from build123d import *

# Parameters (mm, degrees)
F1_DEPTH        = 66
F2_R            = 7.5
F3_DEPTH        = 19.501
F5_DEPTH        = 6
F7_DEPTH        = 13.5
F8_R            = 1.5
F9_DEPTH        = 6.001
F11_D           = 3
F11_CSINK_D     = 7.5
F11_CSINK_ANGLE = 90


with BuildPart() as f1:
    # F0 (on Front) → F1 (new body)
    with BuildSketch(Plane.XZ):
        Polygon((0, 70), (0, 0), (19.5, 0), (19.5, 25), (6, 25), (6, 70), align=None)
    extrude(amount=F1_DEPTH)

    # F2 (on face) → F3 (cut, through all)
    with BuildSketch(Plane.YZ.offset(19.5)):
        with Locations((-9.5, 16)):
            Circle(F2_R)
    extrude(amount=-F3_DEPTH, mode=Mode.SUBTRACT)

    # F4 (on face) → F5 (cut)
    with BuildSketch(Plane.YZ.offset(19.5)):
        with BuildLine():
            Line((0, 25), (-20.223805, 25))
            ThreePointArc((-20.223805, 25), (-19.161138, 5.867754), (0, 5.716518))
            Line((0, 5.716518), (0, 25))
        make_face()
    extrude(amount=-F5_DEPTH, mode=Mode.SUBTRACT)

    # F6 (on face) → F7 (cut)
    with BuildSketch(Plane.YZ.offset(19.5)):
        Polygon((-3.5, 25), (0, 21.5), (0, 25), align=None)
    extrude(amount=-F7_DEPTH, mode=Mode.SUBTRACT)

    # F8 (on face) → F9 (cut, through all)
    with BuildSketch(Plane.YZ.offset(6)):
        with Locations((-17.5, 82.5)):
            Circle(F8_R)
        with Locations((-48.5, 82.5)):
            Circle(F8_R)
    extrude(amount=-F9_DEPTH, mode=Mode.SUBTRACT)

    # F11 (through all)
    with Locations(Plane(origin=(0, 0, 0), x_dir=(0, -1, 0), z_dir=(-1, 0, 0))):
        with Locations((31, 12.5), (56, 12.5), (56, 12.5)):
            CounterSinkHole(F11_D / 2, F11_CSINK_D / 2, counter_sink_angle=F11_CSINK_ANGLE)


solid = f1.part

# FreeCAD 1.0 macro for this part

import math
import FreeCAD as App
import Part
import Sketcher
from FreeCAD import Vector

doc = App.newDocument("Part")
params = doc.addObject("Spreadsheet::Sheet", "Params")
for row, (alias, value) in enumerate([
    ("sketch1_width", "6 mm"),
    ("sketch1_height", "70 mm"),
    ("sketch1_height2", "25 mm"),
    ("sketch1_width2", "19.5 mm"),
    ("pad1_length", "66 mm"),
    ("sketch2_diameter", "15 mm"),
    ("sketch3_radius", "14 mm"),
    ("pocket2_length", "6 mm"),
    ("sketch4_width", "3.5 mm"),
    ("pocket3_length", "13.5 mm"),
    ("sketch5_diameter", "3 mm"),
    ("sketch6_diameter", "3 mm"),
    ("hole_diameter", "3 mm"),
    ("hole_csink_diameter", "7.5 mm"),
], start=1):
    params.set(f"A{row}", alias)
    params.set(f"B{row}", "=" + value)
    params.setAlias(f"B{row}", alias)

body = doc.addObject("PartDesign::Body", "Body")

# Sketch on XZ plane
sketch1 = body.newObject("Sketcher::SketchObject", "Sketch")
sketch1.AttachmentSupport = (doc.getObject("XZ_Plane"), [""])
sketch1.MapMode = "FlatFace"
sketch1.addGeometry(Part.LineSegment(Vector(0, 70, 0), Vector(0, 0, 0)), False)
sketch1.addGeometry(Part.LineSegment(Vector(0, 0, 0), Vector(20, 0, 0)), False)
sketch1.addGeometry(Part.LineSegment(Vector(20, 0, 0), Vector(20, 25, 0)), False)
sketch1.addGeometry(Part.LineSegment(Vector(20, 25, 0), Vector(6, 25, 0)), False)
sketch1.addGeometry(Part.LineSegment(Vector(6, 25, 0), Vector(6, 70, 0)), False)
sketch1.addGeometry(Part.LineSegment(Vector(6, 70, 0), Vector(0, 70, 0)), False)
sketch1.addConstraint(Sketcher.Constraint("Coincident", 0, 2, 1, 1))
sketch1.addConstraint(Sketcher.Constraint("Coincident", 1, 2, 2, 1))
sketch1.addConstraint(Sketcher.Constraint("Coincident", 2, 2, 3, 1))
sketch1.addConstraint(Sketcher.Constraint("Coincident", 3, 2, 4, 1))
sketch1.addConstraint(Sketcher.Constraint("Coincident", 4, 2, 5, 1))
sketch1.addConstraint(Sketcher.Constraint("Coincident", 5, 2, 0, 1))
sketch1.addConstraint(Sketcher.Constraint("Vertical", 0))
sketch1.addConstraint(Sketcher.Constraint("Horizontal", 1))
sketch1.addConstraint(Sketcher.Constraint("Vertical", 2))
sketch1.addConstraint(Sketcher.Constraint("Horizontal", 3))
sketch1.addConstraint(Sketcher.Constraint("Vertical", 4))
sketch1.addConstraint(Sketcher.Constraint("Horizontal", 5))
sketch1.addConstraint(Sketcher.Constraint("Coincident", 0, 2, -1, 1))
sketch1.addConstraint(Sketcher.Constraint("DistanceX", 5, 2, 5, 1, 6.0))
sketch1.addConstraint(Sketcher.Constraint("DistanceY", 0, 2, 0, 1, 70.0))
sketch1.addConstraint(Sketcher.Constraint("DistanceY", 2, 1, 2, 2, 25.0))
sketch1.addConstraint(Sketcher.Constraint("DistanceX", 1, 1, 1, 2, 19.5))
sketch1.setExpression("Constraints[13]", "Params.sketch1_width")
sketch1.setExpression("Constraints[14]", "Params.sketch1_height")
sketch1.setExpression("Constraints[15]", "Params.sketch1_height2")
sketch1.setExpression("Constraints[16]", "Params.sketch1_width2")
pad1 = body.newObject("PartDesign::Pad", "Pad")
pad1.Profile = sketch1
pad1.setExpression("Length", "Params.pad1_length")

# Sketch on YZ plane
sketch2 = body.newObject("Sketcher::SketchObject", "Sketch001")
sketch2.AttachmentSupport = (doc.getObject("YZ_Plane"), [""])
sketch2.MapMode = "FlatFace"
sketch2.AttachmentOffset = App.Placement(Vector(0, 0, 19.5), App.Rotation())
sketch2.addGeometry(Part.Circle(Vector(-10, 16, 0), Vector(0, 0, 1), 8), False)
sketch2.addConstraint(Sketcher.Constraint("Diameter", 0, 15.0))
sketch2.addConstraint(Sketcher.Constraint("DistanceY", -1, 1, 0, 3, 16.0))
sketch2.addConstraint(Sketcher.Constraint("DistanceX", 0, 3, -1, 1, 9.5))
sketch2.setExpression("Constraints[0]", "Params.sketch2_diameter")
pocket1 = body.newObject("PartDesign::Pocket", "Pocket")
pocket1.Profile = sketch2
pocket1.Type = "ThroughAll"

# Sketch on YZ plane
sketch3 = body.newObject("Sketcher::SketchObject", "Sketch002")
sketch3.AttachmentSupport = (doc.getObject("YZ_Plane"), [""])
sketch3.MapMode = "FlatFace"
sketch3.AttachmentOffset = App.Placement(Vector(0, 0, 19.5), App.Rotation())
sketch3.addGeometry(Part.LineSegment(Vector(0, 25, 0), Vector(-20, 25, 0)), False)
sketch3.addGeometry(Part.ArcOfCircle(Part.Circle(Vector(-9, 16, 0), Vector(0, 0, 1), 14), math.radians(140), math.radians(313)), False)
sketch3.addGeometry(Part.LineSegment(Vector(0, 6, 0), Vector(0, 25, 0)), False)
sketch3.addConstraint(Sketcher.Constraint("Coincident", 0, 2, 1, 1))
sketch3.addConstraint(Sketcher.Constraint("Coincident", 1, 2, 2, 1))
sketch3.addConstraint(Sketcher.Constraint("Coincident", 2, 2, 0, 1))
sketch3.addConstraint(Sketcher.Constraint("Horizontal", 0))
sketch3.addConstraint(Sketcher.Constraint("Vertical", 2))
sketch3.addConstraint(Sketcher.Constraint("PointOnObject", 1, 2, -2))
sketch3.addConstraint(Sketcher.Constraint("Radius", 1, 14.0))
sketch3.addConstraint(Sketcher.Constraint("DistanceY", -1, 1, 1, 3, 16.0))
sketch3.addConstraint(Sketcher.Constraint("DistanceY", -1, 1, 0, 2, 25.0))
sketch3.addConstraint(Sketcher.Constraint("DistanceX", 1, 3, -1, 1, 9.5))
sketch3.setExpression("Constraints[6]", "Params.sketch3_radius")
pocket2 = body.newObject("PartDesign::Pocket", "Pocket001")
pocket2.Profile = sketch3
pocket2.setExpression("Length", "Params.pocket2_length")

# Sketch on YZ plane
sketch4 = body.newObject("Sketcher::SketchObject", "Sketch003")
sketch4.AttachmentSupport = (doc.getObject("YZ_Plane"), [""])
sketch4.MapMode = "FlatFace"
sketch4.AttachmentOffset = App.Placement(Vector(0, 0, 19.5), App.Rotation())
sketch4.addGeometry(Part.LineSegment(Vector(-3.5, 25, 0), Vector(0, 21.5, 0)), False)
sketch4.addGeometry(Part.LineSegment(Vector(0, 21.5, 0), Vector(0, 25, 0)), False)
sketch4.addGeometry(Part.LineSegment(Vector(0, 25, 0), Vector(-3.5, 25, 0)), False)
sketch4.addConstraint(Sketcher.Constraint("Coincident", 0, 2, 1, 1))
sketch4.addConstraint(Sketcher.Constraint("Coincident", 1, 2, 2, 1))
sketch4.addConstraint(Sketcher.Constraint("Coincident", 2, 2, 0, 1))
sketch4.addConstraint(Sketcher.Constraint("Vertical", 1))
sketch4.addConstraint(Sketcher.Constraint("Horizontal", 2))
sketch4.addConstraint(Sketcher.Constraint("PointOnObject", 0, 2, -2))
sketch4.addConstraint(Sketcher.Constraint("Equal", 2, 1))
sketch4.addConstraint(Sketcher.Constraint("DistanceX", 2, 2, 2, 1, 3.5))
sketch4.addConstraint(Sketcher.Constraint("DistanceY", -1, 1, 1, 2, 25.0))
sketch4.setExpression("Constraints[7]", "Params.sketch4_width")
pocket3 = body.newObject("PartDesign::Pocket", "Pocket002")
pocket3.Profile = sketch4
pocket3.setExpression("Length", "Params.pocket3_length")

# Sketch on YZ plane
sketch5 = body.newObject("Sketcher::SketchObject", "Sketch004")
sketch5.AttachmentSupport = (doc.getObject("YZ_Plane"), [""])
sketch5.MapMode = "FlatFace"
sketch5.AttachmentOffset = App.Placement(Vector(0, 0, 6), App.Rotation())
sketch5.addGeometry(Part.Circle(Vector(-17.5, 82.5, 0), Vector(0, 0, 1), 1.5), False)
sketch5.addGeometry(Part.Circle(Vector(-48.5, 82.5, 0), Vector(0, 0, 1), 1.5), False)
sketch5.addConstraint(Sketcher.Constraint("Equal", 0, 1))
sketch5.addConstraint(Sketcher.Constraint("Horizontal", 0, 3, 1, 3))
sketch5.addConstraint(Sketcher.Constraint("Diameter", 0, 3.0))
sketch5.addConstraint(Sketcher.Constraint("DistanceX", 1, 3, 0, 3, 31.0))
sketch5.addConstraint(Sketcher.Constraint("DistanceX", 0, 3, -1, 1, 17.5))
sketch5.addConstraint(Sketcher.Constraint("DistanceY", -1, 1, 0, 3, 82.5))
sketch5.setExpression("Constraints[2]", "Params.sketch5_diameter")
pocket4 = body.newObject("PartDesign::Pocket", "Pocket003")
pocket4.Profile = sketch5
pocket4.Type = "ThroughAll"

# Sketch on YZ plane
sketch6 = body.newObject("Sketcher::SketchObject", "Sketch005")
sketch6.AttachmentSupport = (doc.getObject("YZ_Plane"), [""])
sketch6.MapMode = "FlatFace"
sketch6.addGeometry(Part.Circle(Vector(-31, 12.5, 0), Vector(0, 0, 1), 1.5), False)
sketch6.addGeometry(Part.Circle(Vector(-56, 12.5, 0), Vector(0, 0, 1), 1.5), False)
sketch6.addGeometry(Part.Circle(Vector(-56, 12.5, 0), Vector(0, 0, 1), 1.5), False)
sketch6.addConstraint(Sketcher.Constraint("Coincident", 2, 3, 1, 3))
sketch6.addConstraint(Sketcher.Constraint("Equal", 0, 1))
sketch6.addConstraint(Sketcher.Constraint("Equal", 1, 2))
sketch6.addConstraint(Sketcher.Constraint("Horizontal", 0, 3, 1, 3))
sketch6.addConstraint(Sketcher.Constraint("Diameter", 0, 3.0))
sketch6.addConstraint(Sketcher.Constraint("DistanceX", 0, 3, -1, 1, 31.0))
sketch6.addConstraint(Sketcher.Constraint("DistanceX", 1, 3, -1, 1, 56.0))
sketch6.addConstraint(Sketcher.Constraint("DistanceY", -1, 1, 0, 3, 12.5))
sketch6.setExpression("Constraints[4]", "Params.sketch6_diameter")
doc.recompute()
hole = body.newObject("PartDesign::Hole", "Hole")
hole.Profile = sketch6
hole.ThreadType = "None"
hole.setExpression("Diameter", "Params.hole_diameter")
hole.DepthType = "ThroughAll"
hole.HoleCutType = "Countersink"
hole.setExpression("HoleCutDiameter", "Params.hole_csink_diameter")
hole.HoleCutCountersinkAngle = 90
hole.Reversed = True

doc.recompute()
